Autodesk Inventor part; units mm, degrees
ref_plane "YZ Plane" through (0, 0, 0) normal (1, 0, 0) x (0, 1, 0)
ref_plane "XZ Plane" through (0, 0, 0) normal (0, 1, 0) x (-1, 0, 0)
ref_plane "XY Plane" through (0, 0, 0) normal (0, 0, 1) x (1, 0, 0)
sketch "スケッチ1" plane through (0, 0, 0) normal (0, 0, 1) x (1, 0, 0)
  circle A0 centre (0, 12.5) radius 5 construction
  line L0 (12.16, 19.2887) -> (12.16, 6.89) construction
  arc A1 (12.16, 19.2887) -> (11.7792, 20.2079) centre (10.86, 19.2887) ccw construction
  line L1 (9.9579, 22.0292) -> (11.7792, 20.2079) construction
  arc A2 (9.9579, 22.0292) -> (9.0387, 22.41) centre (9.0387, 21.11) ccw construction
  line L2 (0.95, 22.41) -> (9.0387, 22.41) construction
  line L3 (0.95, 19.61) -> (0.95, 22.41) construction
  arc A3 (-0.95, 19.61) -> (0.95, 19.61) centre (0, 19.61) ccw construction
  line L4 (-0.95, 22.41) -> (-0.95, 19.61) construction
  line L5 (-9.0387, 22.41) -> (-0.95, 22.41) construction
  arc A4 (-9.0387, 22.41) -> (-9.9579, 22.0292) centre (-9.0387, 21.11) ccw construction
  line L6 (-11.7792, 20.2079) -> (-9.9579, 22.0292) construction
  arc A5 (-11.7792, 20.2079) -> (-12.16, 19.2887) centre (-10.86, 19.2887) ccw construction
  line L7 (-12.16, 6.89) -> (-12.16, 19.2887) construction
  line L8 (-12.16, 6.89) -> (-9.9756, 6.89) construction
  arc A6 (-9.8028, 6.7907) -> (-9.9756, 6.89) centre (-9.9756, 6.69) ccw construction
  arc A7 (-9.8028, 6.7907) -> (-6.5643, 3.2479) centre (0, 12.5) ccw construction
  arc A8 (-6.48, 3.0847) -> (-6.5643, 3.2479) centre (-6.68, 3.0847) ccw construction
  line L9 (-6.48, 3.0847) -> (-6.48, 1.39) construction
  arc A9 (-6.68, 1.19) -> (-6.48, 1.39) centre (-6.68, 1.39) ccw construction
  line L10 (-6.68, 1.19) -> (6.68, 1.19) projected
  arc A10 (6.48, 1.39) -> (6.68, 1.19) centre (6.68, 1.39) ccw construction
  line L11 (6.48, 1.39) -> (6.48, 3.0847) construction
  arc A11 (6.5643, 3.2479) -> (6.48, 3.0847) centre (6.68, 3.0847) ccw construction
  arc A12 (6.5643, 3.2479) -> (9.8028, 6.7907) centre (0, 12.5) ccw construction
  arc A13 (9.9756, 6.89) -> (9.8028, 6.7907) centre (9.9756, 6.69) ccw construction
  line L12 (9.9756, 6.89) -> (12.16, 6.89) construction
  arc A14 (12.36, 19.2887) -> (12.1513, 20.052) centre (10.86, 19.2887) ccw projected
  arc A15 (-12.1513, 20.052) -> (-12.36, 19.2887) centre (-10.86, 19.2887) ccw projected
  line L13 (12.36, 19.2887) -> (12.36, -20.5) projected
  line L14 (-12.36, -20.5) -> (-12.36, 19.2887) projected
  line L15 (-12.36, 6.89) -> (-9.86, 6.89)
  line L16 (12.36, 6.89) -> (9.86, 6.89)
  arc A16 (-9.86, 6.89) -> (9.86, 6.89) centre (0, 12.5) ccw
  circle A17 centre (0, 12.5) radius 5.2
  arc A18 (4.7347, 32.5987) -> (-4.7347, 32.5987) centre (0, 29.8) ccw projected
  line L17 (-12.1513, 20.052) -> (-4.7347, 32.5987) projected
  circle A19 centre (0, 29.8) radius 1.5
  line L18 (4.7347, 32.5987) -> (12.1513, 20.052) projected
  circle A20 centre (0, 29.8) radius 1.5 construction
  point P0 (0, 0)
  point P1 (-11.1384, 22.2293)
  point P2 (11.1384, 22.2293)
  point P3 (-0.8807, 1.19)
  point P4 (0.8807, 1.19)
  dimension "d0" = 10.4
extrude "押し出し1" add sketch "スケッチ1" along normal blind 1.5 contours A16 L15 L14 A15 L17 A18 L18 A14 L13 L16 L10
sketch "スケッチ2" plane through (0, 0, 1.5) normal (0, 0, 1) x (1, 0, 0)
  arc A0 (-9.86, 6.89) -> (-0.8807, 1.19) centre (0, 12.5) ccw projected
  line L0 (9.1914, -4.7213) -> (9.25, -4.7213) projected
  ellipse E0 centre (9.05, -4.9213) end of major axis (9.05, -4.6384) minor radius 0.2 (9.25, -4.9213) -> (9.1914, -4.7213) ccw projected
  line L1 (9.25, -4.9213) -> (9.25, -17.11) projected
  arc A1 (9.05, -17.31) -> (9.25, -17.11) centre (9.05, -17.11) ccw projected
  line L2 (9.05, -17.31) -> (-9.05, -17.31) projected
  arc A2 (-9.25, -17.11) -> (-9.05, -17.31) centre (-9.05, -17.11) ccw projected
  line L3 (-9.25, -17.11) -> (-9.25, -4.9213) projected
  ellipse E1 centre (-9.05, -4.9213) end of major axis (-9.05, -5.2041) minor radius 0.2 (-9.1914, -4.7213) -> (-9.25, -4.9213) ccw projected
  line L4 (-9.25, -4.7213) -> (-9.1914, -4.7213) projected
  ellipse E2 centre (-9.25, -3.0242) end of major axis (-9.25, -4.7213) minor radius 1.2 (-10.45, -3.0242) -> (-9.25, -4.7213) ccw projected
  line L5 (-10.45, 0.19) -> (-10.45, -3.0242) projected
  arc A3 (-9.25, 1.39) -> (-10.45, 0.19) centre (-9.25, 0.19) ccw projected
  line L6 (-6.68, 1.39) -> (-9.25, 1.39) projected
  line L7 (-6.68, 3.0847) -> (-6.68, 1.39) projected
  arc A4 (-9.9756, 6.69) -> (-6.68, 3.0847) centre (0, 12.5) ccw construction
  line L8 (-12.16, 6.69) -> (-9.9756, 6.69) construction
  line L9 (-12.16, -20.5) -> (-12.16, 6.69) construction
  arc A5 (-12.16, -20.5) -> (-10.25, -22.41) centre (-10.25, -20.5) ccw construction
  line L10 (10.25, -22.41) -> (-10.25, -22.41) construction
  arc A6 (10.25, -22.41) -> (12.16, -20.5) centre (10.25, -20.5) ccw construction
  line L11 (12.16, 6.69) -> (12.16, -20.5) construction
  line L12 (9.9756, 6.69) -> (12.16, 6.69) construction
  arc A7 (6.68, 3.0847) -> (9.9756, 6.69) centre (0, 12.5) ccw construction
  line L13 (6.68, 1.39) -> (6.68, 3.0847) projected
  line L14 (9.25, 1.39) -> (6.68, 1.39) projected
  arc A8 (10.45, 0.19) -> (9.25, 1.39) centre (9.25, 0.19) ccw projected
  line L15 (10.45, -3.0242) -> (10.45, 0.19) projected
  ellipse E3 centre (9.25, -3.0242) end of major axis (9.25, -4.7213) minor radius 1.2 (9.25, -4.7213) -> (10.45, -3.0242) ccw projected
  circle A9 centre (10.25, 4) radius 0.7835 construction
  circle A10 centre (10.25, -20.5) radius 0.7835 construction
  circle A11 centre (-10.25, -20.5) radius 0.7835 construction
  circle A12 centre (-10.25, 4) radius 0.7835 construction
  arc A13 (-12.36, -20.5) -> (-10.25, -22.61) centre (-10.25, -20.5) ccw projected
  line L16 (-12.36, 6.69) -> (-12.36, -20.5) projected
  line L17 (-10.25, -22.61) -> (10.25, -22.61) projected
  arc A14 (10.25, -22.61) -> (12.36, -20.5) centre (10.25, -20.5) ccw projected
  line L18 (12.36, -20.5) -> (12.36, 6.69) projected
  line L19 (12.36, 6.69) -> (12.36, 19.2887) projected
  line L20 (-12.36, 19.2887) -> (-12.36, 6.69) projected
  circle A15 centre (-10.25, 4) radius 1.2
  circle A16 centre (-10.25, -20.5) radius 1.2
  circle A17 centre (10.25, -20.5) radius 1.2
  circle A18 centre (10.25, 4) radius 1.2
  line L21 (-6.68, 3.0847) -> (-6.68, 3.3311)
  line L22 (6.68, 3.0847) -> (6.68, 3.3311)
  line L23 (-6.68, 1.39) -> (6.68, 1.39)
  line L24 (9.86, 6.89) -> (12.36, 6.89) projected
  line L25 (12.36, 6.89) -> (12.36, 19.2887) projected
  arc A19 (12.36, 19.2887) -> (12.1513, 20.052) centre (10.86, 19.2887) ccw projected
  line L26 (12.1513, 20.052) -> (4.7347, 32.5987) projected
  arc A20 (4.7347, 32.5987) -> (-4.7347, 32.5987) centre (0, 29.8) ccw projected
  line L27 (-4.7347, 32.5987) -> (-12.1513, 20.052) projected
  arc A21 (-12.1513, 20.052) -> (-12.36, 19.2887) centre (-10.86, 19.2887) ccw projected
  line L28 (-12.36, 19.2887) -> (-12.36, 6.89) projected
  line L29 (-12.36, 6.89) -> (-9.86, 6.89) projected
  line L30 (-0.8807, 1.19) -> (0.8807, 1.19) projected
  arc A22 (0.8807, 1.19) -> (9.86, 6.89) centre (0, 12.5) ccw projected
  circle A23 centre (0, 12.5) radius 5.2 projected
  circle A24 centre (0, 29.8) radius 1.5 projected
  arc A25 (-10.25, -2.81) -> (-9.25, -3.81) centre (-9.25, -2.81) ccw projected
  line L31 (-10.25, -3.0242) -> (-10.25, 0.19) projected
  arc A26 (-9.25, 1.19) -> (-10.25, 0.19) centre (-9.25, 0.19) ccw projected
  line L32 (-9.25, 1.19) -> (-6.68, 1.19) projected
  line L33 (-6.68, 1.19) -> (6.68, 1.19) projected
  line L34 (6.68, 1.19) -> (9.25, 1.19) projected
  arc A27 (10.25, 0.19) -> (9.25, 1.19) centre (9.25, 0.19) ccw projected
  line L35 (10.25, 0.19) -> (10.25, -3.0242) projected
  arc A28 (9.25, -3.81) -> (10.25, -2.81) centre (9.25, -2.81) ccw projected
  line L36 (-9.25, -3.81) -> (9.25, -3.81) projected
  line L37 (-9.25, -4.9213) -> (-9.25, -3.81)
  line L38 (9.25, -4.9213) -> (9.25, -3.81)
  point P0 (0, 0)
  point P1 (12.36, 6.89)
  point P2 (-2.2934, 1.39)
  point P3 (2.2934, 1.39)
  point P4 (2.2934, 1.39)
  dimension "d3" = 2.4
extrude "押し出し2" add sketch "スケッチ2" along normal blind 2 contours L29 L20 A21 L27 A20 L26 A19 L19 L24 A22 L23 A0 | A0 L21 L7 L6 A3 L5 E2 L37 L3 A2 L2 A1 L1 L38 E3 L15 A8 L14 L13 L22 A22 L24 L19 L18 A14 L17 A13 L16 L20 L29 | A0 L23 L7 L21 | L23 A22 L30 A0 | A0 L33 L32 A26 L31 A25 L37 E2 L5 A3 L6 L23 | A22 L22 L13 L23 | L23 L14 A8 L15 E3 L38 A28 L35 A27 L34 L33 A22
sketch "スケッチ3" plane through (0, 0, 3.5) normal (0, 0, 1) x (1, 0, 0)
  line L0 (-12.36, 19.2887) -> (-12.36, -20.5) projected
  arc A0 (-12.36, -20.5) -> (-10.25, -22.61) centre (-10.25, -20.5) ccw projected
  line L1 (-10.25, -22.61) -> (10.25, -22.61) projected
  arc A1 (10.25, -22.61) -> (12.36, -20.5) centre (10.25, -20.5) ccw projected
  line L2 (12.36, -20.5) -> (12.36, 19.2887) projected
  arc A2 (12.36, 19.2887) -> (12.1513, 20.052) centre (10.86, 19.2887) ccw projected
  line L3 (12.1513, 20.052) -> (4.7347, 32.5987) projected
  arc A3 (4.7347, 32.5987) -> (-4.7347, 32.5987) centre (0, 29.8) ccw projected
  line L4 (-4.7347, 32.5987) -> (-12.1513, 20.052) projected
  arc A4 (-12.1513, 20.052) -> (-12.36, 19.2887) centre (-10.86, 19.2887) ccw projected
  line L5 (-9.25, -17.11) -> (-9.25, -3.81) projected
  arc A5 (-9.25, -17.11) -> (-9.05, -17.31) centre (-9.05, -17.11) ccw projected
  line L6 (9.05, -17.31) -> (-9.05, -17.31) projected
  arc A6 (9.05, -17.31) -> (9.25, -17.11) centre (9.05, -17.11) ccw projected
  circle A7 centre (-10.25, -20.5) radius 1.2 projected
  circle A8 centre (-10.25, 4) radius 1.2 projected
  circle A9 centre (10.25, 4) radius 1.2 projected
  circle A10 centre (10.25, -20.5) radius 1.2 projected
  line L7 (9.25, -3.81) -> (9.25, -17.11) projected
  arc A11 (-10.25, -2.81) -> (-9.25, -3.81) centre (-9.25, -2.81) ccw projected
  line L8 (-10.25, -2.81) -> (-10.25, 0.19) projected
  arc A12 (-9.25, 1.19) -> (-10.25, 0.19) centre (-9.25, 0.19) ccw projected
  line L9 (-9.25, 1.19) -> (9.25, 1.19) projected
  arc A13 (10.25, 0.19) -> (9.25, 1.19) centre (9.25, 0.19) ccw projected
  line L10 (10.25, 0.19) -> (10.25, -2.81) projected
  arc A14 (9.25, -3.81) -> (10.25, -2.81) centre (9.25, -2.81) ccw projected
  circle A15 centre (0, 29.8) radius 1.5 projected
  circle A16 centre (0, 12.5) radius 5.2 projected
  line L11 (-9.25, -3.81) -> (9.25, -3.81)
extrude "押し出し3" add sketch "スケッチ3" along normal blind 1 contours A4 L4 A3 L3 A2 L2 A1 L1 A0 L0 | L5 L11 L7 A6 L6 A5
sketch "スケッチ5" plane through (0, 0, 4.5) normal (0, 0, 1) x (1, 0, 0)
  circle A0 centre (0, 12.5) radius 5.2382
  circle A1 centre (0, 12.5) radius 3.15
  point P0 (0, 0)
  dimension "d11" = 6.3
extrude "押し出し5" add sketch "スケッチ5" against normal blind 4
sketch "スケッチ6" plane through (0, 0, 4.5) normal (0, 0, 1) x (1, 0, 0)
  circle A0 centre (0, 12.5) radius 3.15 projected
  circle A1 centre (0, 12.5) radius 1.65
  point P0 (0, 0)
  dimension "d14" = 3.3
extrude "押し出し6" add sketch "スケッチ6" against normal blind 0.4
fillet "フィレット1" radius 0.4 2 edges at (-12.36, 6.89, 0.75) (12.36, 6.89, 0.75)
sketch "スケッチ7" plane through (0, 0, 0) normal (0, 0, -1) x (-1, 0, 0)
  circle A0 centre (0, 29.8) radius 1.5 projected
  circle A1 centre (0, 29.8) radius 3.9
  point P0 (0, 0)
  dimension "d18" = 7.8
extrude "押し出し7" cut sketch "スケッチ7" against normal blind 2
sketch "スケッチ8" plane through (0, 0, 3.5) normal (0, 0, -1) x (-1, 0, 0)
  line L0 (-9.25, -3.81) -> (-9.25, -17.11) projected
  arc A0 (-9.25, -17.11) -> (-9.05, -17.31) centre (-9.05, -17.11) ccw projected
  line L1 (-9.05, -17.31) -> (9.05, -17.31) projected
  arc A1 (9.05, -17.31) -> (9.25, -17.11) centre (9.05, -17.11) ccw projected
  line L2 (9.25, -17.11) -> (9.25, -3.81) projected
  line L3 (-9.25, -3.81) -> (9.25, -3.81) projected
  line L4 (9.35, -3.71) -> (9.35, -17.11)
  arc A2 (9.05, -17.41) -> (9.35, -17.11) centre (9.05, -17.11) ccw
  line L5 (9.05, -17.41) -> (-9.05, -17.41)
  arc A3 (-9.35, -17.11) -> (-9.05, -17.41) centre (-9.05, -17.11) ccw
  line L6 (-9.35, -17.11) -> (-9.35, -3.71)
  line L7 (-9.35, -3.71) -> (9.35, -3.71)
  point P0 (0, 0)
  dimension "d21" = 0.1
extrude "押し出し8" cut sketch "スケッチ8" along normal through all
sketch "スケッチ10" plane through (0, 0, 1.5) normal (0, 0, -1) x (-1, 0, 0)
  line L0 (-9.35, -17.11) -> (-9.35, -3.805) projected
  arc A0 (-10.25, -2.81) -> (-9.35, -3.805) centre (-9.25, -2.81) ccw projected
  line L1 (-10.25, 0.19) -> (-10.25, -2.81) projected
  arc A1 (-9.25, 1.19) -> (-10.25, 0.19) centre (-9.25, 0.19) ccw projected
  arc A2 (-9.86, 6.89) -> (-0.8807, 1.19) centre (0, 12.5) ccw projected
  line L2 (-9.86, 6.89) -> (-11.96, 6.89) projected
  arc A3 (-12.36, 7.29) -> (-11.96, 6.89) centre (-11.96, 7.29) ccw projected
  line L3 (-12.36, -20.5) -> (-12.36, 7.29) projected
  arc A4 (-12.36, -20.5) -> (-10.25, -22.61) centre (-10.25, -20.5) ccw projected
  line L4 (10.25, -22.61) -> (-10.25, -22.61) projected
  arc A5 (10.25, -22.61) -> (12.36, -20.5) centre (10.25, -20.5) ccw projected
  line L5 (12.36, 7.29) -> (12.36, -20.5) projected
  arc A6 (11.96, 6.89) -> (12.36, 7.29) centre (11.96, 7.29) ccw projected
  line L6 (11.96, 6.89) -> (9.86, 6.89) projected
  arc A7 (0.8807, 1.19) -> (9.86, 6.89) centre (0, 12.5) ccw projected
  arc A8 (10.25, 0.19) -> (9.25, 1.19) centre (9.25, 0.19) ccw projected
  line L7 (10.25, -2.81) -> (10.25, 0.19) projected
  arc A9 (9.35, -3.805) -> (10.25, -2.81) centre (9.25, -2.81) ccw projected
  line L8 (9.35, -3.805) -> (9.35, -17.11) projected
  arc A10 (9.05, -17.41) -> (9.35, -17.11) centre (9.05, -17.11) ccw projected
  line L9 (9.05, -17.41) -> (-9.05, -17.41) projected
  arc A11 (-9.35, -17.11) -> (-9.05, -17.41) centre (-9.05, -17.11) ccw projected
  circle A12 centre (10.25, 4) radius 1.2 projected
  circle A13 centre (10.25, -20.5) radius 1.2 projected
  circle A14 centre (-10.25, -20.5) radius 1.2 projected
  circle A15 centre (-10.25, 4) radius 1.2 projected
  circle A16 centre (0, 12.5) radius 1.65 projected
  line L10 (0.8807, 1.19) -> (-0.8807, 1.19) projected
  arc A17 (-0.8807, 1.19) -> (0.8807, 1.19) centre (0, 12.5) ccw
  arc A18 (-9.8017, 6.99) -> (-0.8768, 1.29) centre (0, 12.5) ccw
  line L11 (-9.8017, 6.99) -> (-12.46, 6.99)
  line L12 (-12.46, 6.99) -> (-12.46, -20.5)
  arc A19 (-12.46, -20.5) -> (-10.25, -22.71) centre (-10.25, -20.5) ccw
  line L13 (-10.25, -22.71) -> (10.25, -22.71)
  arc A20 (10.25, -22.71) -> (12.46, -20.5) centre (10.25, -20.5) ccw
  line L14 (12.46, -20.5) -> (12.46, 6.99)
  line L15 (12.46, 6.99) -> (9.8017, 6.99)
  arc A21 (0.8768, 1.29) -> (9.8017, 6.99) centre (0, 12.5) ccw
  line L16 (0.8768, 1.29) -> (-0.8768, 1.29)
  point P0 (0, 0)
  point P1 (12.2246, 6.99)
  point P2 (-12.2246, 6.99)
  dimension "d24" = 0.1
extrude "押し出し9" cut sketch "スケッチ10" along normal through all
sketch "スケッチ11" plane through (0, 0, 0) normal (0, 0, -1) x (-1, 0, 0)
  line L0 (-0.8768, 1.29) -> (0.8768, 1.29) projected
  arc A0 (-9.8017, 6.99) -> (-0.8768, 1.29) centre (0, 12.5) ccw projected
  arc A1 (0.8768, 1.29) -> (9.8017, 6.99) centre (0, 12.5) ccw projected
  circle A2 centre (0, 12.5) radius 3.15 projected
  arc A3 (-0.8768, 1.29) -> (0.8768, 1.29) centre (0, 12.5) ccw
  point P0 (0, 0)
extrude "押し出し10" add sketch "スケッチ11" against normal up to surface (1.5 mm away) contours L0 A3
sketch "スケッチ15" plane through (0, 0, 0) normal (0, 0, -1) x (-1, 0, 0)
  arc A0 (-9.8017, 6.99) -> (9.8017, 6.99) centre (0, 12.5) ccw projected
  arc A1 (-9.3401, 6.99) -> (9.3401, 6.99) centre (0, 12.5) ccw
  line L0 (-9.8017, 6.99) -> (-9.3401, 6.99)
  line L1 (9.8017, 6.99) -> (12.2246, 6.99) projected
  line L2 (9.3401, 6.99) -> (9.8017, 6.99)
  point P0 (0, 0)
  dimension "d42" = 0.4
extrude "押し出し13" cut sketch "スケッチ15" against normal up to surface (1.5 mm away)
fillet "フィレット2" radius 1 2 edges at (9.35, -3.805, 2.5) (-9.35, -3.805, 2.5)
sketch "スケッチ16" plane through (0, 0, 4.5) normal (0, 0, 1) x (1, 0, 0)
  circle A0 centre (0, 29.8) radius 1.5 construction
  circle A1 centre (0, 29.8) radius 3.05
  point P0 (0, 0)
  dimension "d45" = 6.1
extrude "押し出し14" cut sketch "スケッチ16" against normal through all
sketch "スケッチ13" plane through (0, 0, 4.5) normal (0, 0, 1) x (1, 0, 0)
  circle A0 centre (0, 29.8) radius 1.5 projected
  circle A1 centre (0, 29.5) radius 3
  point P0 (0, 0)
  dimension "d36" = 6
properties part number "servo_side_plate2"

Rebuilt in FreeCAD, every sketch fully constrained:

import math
import FreeCAD as App
import Part
import Sketcher
Q = App.Units.Quantity


def edges_at(feature, points):
    """Names of the edges that pass closest to the given points."""
    edges = feature.Shape.Edges
    near = lambda p: min(range(len(edges)), key=lambda i: edges[i].distToShape(Part.Vertex(*p))[0])
    return sorted({f"Edge{near(p) + 1}" for p in points})

doc = App.newDocument("Part")
params = doc.addObject("Spreadsheet::Sheet", "Params")
for row, (alias, value) in enumerate([
    ("sketch1_diameter", "10.4 mm"),
    ("sketch1_diameter2", "3 mm"),
    ("sketch1_radius", "5.5 mm"),
    ("sketch1_width", "2.5 mm"),
    ("pad1_length", "1.5 mm"),
    ("sketch2_diameter", "2.4 mm"),
    ("sketch2_diameter2", "3 mm"),
    ("sketch2_radius", "1 mm"),
    ("sketch2_diameter3", "10.4 mm"),
    ("sketch2_radius2", "5.5 mm"),
    ("pad2_length", "2 mm"),
    ("sketch3_diameter", "3 mm"),
    ("sketch3_radius", "1 mm"),
    ("sketch3_diameter2", "2.4 mm"),
    ("sketch3_diameter3", "10.4 mm"),
    ("sketch3_radius2", "5.5 mm"),
    ("pad3_length", "1 mm"),
    ("sketch4_diameter", "6.3 mm"),
    ("pad4_length", "4 mm"),
    ("sketch5_diameter", "3.3 mm"),
    ("sketch5_diameter2", "6.3 mm"),
    ("pad5_length", "0.4 mm"),
    ("fillet_radius", "0.4 mm"),
    ("sketch6_diameter", "7.8 mm"),
    ("sketch6_diameter2", "3 mm"),
    ("pocket1_length", "2 mm"),
    ("sketch7_radius", "0.3 mm"),
    ("sketch7_radius2", "0.2 mm"),
    ("sketch7_width", "18.7 mm"),
    ("sketch7_height", "13.4 mm"),
    ("sketch8_width", "0.1 mm"),
    ("sketch8_diameter", "2.4 mm"),
    ("sketch8_diameter2", "3.3 mm"),
    ("sketch8_radius", "0.4 mm"),
    ("sketch8_radius2", "2.21 mm"),
    ("pad6_length", "1.5 mm"),
    ("pocket4_length", "1.5 mm"),
    ("fillet2_radius", "1 mm"),
    ("sketch11_diameter", "6.1 mm"),
], start=1):
    params.set(f"A{row}", alias)
    params.set(f"B{row}", "=" + value)
    params.setAlias(f"B{row}", alias)

body = doc.addObject("PartDesign::Body", "Body")

# Sketch on XY plane
sketch1 = doc.addObject("Sketcher::SketchObject", "Sketch")
body.addObject(sketch1)
sketch1.AttachmentSupport = (doc.XY_Plane, [""])
sketch1.MapMode = "FlatFace"
sketch1.addGeometry([
    Part.ArcOfCircle(Part.Circle(App.Vector(0, 12.5, 0), App.Vector(0, 0, 1), 11.3), math.radians(-150), math.radians(-94)),  # 0
    Part.LineSegment(App.Vector(-0.9, 1.2, 0), App.Vector(0.9, 1.2, 0)),  # 1
    Part.ArcOfCircle(Part.Circle(App.Vector(0, 12.5, 0), App.Vector(0, 0, 1), 11.3), math.radians(-86), math.radians(-30)),  # 2
    Part.LineSegment(App.Vector(9.9, 6.9, 0), App.Vector(12.4, 6.9, 0)),  # 3
    Part.LineSegment(App.Vector(12.4, 6.9, 0), App.Vector(12.4, 19.3, 0)),  # 4
    Part.ArcOfCircle(Part.Circle(App.Vector(10.9, 19.3, 0), App.Vector(0, 0, 1), 1.5), math.radians(0), math.radians(31)),  # 5
    Part.LineSegment(App.Vector(12.2, 20.1, 0), App.Vector(4.7, 32.6, 0)),  # 6
    Part.ArcOfCircle(Part.Circle(App.Vector(0, 29.8, 0), App.Vector(0, 0, 1), 5.5), math.radians(31), math.radians(149)),  # 7
    Part.LineSegment(App.Vector(-4.7, 32.6, 0), App.Vector(-12.2, 20.1, 0)),  # 8
    Part.ArcOfCircle(Part.Circle(App.Vector(-10.9, 19.3, 0), App.Vector(0, 0, 1), 1.5), math.radians(149), math.radians(180)),  # 9
    Part.LineSegment(App.Vector(-12.4, 19.3, 0), App.Vector(-12.4, 6.9, 0)),  # 10
    Part.LineSegment(App.Vector(-12.4, 6.9, 0), App.Vector(-9.9, 6.9, 0)),  # 11
    Part.Circle(App.Vector(0, 12.5, 0), App.Vector(0, 0, 1), 5.2),  # 12
    Part.Circle(App.Vector(0, 29.8, 0), App.Vector(0, 0, 1), 1.5),  # 13
], False)
sketch1.addConstraint([
    Sketcher.Constraint("Coincident", 0, 2, 1, 1),
    Sketcher.Constraint("Coincident", 1, 2, 2, 1),
    Sketcher.Constraint("Coincident", 2, 2, 3, 1),
    Sketcher.Constraint("Coincident", 3, 2, 4, 1),
    Sketcher.Constraint("Tangent", 4, 2, 5, 1),
    Sketcher.Constraint("Tangent", 5, 2, 6, 1),
    Sketcher.Constraint("Tangent", 6, 2, 7, 1),
    Sketcher.Constraint("Tangent", 7, 2, 8, 1),
    Sketcher.Constraint("Tangent", 8, 2, 9, 1),
    Sketcher.Constraint("Tangent", 9, 2, 10, 1),
    Sketcher.Constraint("Coincident", 10, 2, 11, 1),
    Sketcher.Constraint("Coincident", 11, 2, 0, 1),
    Sketcher.Constraint("Horizontal", 1),
    Sketcher.Constraint("Horizontal", 3),
    Sketcher.Constraint("Vertical", 4),
    Sketcher.Constraint("Vertical", 10),
    Sketcher.Constraint("Horizontal", 11),
    Sketcher.Constraint("Coincident", 2, 3, 0, 3),
    Sketcher.Constraint("Coincident", 12, 3, 0, 3),
    Sketcher.Constraint("Coincident", 13, 3, 7, 3),
    Sketcher.Constraint("Equal", 0, 2),
    Sketcher.Constraint("Equal", 5, 9),
    Sketcher.Constraint("Equal", 9, 13),
    Sketcher.Constraint("Symmetric", 5, 3, 9, 3, -2),
    Sketcher.Constraint("Symmetric", 2, 2, 11, 2, -2),
    Sketcher.Constraint("PointOnObject", 7, 3, -2),
    Sketcher.Constraint("Diameter", 12, Q("10.4 mm")),
    Sketcher.Constraint("Diameter", 13, Q("3 mm")),
    Sketcher.Constraint("Radius", 7, Q("5.5 mm")),
    Sketcher.Constraint("DistanceX", 3, 1, 3, 2, Q("2.5 mm")),
    Sketcher.Constraint("DistanceY", -1, 1, 0, 3, Q("12.5 mm")),
    Sketcher.Constraint("DistanceY", -1, 1, 7, 3, Q("29.8 mm")),
    Sketcher.Constraint("Radius", 0, Q("11.3442 mm")),
    Sketcher.Constraint("DistanceY", 1, 2, 2, 2, Q("5.7 mm")),
    Sketcher.Constraint("DistanceX", -1, 1, 5, 3, Q("10.86 mm")),
    Sketcher.Constraint("DistanceY", 5, 3, 6, 2, Q("13.31 mm")),
])
sketch1.setExpression("Constraints[26]", "Params.sketch1_diameter")
sketch1.setExpression("Constraints[27]", "Params.sketch1_diameter2")
sketch1.setExpression("Constraints[28]", "Params.sketch1_radius")
sketch1.setExpression("Constraints[29]", "Params.sketch1_width")
pad1 = doc.addObject("PartDesign::Pad", "Pad")
body.addObject(pad1)
pad1.Profile = sketch1
pad1.setExpression("Length", "Params.pad1_length")

# Sketch on XY plane
sketch2 = doc.addObject("Sketcher::SketchObject", "Sketch001")
body.addObject(sketch2)
sketch2.AttachmentSupport = (doc.XY_Plane, [""])
sketch2.MapMode = "FlatFace"
sketch2.AttachmentOffset = App.Placement(App.Vector(0, 0, 1.5), App.Rotation())
sketch2.addGeometry([
    Part.LineSegment(App.Vector(-12.36, 19.29, 0), App.Vector(-12.36, -20.5, 0)),  # 0
    Part.ArcOfCircle(Part.Circle(App.Vector(-10.25, -20.5, 0), App.Vector(0, 0, 1), 2.11), math.radians(180), math.radians(270)),  # 1
    Part.LineSegment(App.Vector(-10.25, -22.61, 0), App.Vector(10.25, -22.61, 0)),  # 2
    Part.ArcOfCircle(Part.Circle(App.Vector(10.25, -20.5, 0), App.Vector(0, 0, 1), 2.11), math.radians(-90), math.radians(0)),  # 3
    Part.LineSegment(App.Vector(12.36, -20.5, 0), App.Vector(12.36, 19.29, 0)),  # 4
    Part.ArcOfCircle(Part.Circle(App.Vector(10.86, 19.29, 0), App.Vector(0, 0, 1), 1.5), math.radians(0), math.radians(31)),  # 5
    Part.LineSegment(App.Vector(12.15, 20.05, 0), App.Vector(4.73, 32.6, 0)),  # 6
    Part.ArcOfCircle(Part.Circle(App.Vector(0, 29.8, 0), App.Vector(0, 0, 1), 5.5), math.radians(31), math.radians(149)),  # 7
    Part.LineSegment(App.Vector(-4.73, 32.6, 0), App.Vector(-12.15, 20.05, 0)),  # 8
    Part.ArcOfCircle(Part.Circle(App.Vector(-10.86, 19.29, 0), App.Vector(0, 0, 1), 1.5), math.radians(149), math.radians(180)),  # 9
    Part.Circle(App.Vector(0, 12.5, 0), App.Vector(0, 0, 1), 5.2),  # 10
    Part.Circle(App.Vector(0, 29.8, 0), App.Vector(0, 0, 1), 1.5),  # 11
    Part.Circle(App.Vector(-10.25, -20.5, 0), App.Vector(0, 0, 1), 1.2),  # 12
    Part.ArcOfCircle(Part.Circle(App.Vector(-9.25, -2.81, 0), App.Vector(0, 0, 1), 1), math.radians(180), math.radians(270)),  # 13
    Part.LineSegment(App.Vector(-10.25, -2.81, 0), App.Vector(-10.25, 0.19, 0)),  # 14
    Part.ArcOfCircle(Part.Circle(App.Vector(-9.25, 0.19, 0), App.Vector(0, 0, 1), 1), math.radians(90), math.radians(180)),  # 15
    Part.LineSegment(App.Vector(-9.25, 1.19, 0), App.Vector(9.25, 1.19, 0)),  # 16
    Part.ArcOfCircle(Part.Circle(App.Vector(9.25, 0.19, 0), App.Vector(0, 0, 1), 1), math.radians(0), math.radians(90)),  # 17
    Part.LineSegment(App.Vector(10.25, 0.19, 0), App.Vector(10.25, -2.81, 0)),  # 18
    Part.ArcOfCircle(Part.Circle(App.Vector(9.25, -2.81, 0), App.Vector(0, 0, 1), 1), math.radians(-90), math.radians(0)),  # 19
    Part.LineSegment(App.Vector(9.25, -3.81, 0), App.Vector(9.25, -17.11, 0)),  # 20
    Part.ArcOfCircle(Part.Circle(App.Vector(9.05, -17.11, 0), App.Vector(0, 0, 1), 0.2), math.radians(-90), math.radians(0)),  # 21
    Part.LineSegment(App.Vector(9.05, -17.31, 0), App.Vector(-9.05, -17.31, 0)),  # 22
    Part.ArcOfCircle(Part.Circle(App.Vector(-9.05, -17.11, 0), App.Vector(0, 0, 1), 0.2), math.radians(180), math.radians(270)),  # 23
    Part.LineSegment(App.Vector(-9.25, -17.11, 0), App.Vector(-9.25, -3.81, 0)),  # 24
    Part.Circle(App.Vector(-10.25, 4, 0), App.Vector(0, 0, 1), 1.2),  # 25
    Part.Circle(App.Vector(10.25, -20.5, 0), App.Vector(0, 0, 1), 1.2),  # 26
    Part.Circle(App.Vector(10.25, 4, 0), App.Vector(0, 0, 1), 1.2),  # 27
], False)
sketch2.addConstraint([
    Sketcher.Constraint("Tangent", 0, 2, 1, 1),
    Sketcher.Constraint("Tangent", 1, 2, 2, 1),
    Sketcher.Constraint("Tangent", 2, 2, 3, 1),
    Sketcher.Constraint("Tangent", 3, 2, 4, 1),
    Sketcher.Constraint("Tangent", 4, 2, 5, 1),
    Sketcher.Constraint("Tangent", 5, 2, 6, 1),
    Sketcher.Constraint("Tangent", 6, 2, 7, 1),
    Sketcher.Constraint("Tangent", 7, 2, 8, 1),
    Sketcher.Constraint("Tangent", 8, 2, 9, 1),
    Sketcher.Constraint("Tangent", 9, 2, 0, 1),
    Sketcher.Constraint("Tangent", 13, 1, 14, 1),
    Sketcher.Constraint("Tangent", 14, 2, 15, 2),
    Sketcher.Constraint("Tangent", 15, 1, 16, 1),
    Sketcher.Constraint("Tangent", 16, 2, 17, 2),
    Sketcher.Constraint("Tangent", 17, 1, 18, 1),
    Sketcher.Constraint("Tangent", 18, 2, 19, 2),
    Sketcher.Constraint("Coincident", 19, 1, 20, 1),
    Sketcher.Constraint("Tangent", 20, 2, 21, 2),
    Sketcher.Constraint("Tangent", 21, 1, 22, 1),
    Sketcher.Constraint("Tangent", 22, 2, 23, 2),
    Sketcher.Constraint("Tangent", 23, 1, 24, 1),
    Sketcher.Constraint("Coincident", 24, 2, 13, 2),
    Sketcher.Constraint("Vertical", 0),
    Sketcher.Constraint("Horizontal", 2),
    Sketcher.Constraint("Vertical", 4),
    Sketcher.Constraint("Vertical", 14),
    Sketcher.Constraint("Horizontal", 16),
    Sketcher.Constraint("Vertical", 18),
    Sketcher.Constraint("Vertical", 20),
    Sketcher.Constraint("Horizontal", 22),
    Sketcher.Constraint("Vertical", 24),
    Sketcher.Constraint("Coincident", 11, 3, 7, 3),
    Sketcher.Constraint("Coincident", 12, 3, 1, 3),
    Sketcher.Constraint("Coincident", 26, 3, 3, 3),
    Sketcher.Constraint("Equal", 1, 3),
    Sketcher.Constraint("Equal", 5, 9),
    Sketcher.Constraint("Equal", 9, 11),
    Sketcher.Constraint("Equal", 13, 15),
    Sketcher.Constraint("Equal", 15, 17),
    Sketcher.Constraint("Equal", 17, 19),
    Sketcher.Constraint("Equal", 21, 23),
    Sketcher.Constraint("Equal", 12, 25),
    Sketcher.Constraint("Equal", 25, 26),
    Sketcher.Constraint("Equal", 26, 27),
    Sketcher.Constraint("Symmetric", 5, 3, 9, 3, -2),
    Sketcher.Constraint("Symmetric", 13, 3, 19, 3, -2),
    Sketcher.Constraint("Symmetric", 25, 3, 27, 3, -2),
    Sketcher.Constraint("PointOnObject", 7, 3, -2),
    Sketcher.Constraint("PointOnObject", 10, 3, -2),
    Sketcher.Constraint("Vertical", 12, 3, 25, 3),
    Sketcher.Constraint("Vertical", 1, 2, 13, 1),
    Sketcher.Constraint("Vertical", 16, 2, 19, 1),
    Sketcher.Constraint("Vertical", 15, 1, 23, 1),
    Sketcher.Constraint("Diameter", 12, Q("2.4 mm")),
    Sketcher.Constraint("Diameter", 11, Q("3 mm")),
    Sketcher.Constraint("Radius", 13, Q("1 mm")),
    Sketcher.Constraint("Diameter", 10, Q("10.4 mm")),
    Sketcher.Constraint("Radius", 7, Q("5.5 mm")),
    Sketcher.Constraint("Radius", 21, Q("0.2 mm")),
    Sketcher.Constraint("DistanceY", 14, 1, 14, 2, Q("3 mm")),
    Sketcher.Constraint("Radius", 1, Q("2.11 mm")),
    Sketcher.Constraint("DistanceX", 2, 1, 2, 2, Q("20.5 mm")),
    Sketcher.Constraint("DistanceY", 20, 2, 20, 1, Q("13.3 mm")),
    Sketcher.Constraint("DistanceY", -1, 1, 25, 3, Q("4 mm")),
    Sketcher.Constraint("DistanceY", 1, 3, 10, 3, Q("33 mm")),
    Sketcher.Constraint("DistanceY", 1, 3, -1, 1, Q("20.5 mm")),
    Sketcher.Constraint("DistanceY", -1, 1, 7, 3, Q("29.8 mm")),
    Sketcher.Constraint("DistanceY", 1, 2, 23, 3, Q("5.5 mm")),
    Sketcher.Constraint("DistanceY", 5, 3, 6, 2, Q("13.31 mm")),
])
sketch2.setExpression("Constraints[53]", "Params.sketch2_diameter")
sketch2.setExpression("Constraints[54]", "Params.sketch2_diameter2")
sketch2.setExpression("Constraints[55]", "Params.sketch2_radius")
sketch2.setExpression("Constraints[56]", "Params.sketch2_diameter3")
sketch2.setExpression("Constraints[57]", "Params.sketch2_radius2")
pad2 = doc.addObject("PartDesign::Pad", "Pad001")
body.addObject(pad2)
pad2.Profile = sketch2
pad2.setExpression("Length", "Params.pad2_length")

# Sketch on XY plane
sketch3 = doc.addObject("Sketcher::SketchObject", "Sketch002")
body.addObject(sketch3)
sketch3.AttachmentSupport = (doc.XY_Plane, [""])
sketch3.MapMode = "FlatFace"
sketch3.AttachmentOffset = App.Placement(App.Vector(0, 0, 3.5), App.Rotation())
sketch3.addGeometry([
    Part.ArcOfCircle(Part.Circle(App.Vector(-10.9, 19.3, 0), App.Vector(0, 0, 1), 1.5), math.radians(149), math.radians(180)),  # 0
    Part.LineSegment(App.Vector(-12.4, 19.3, 0), App.Vector(-12.4, -20.5, 0)),  # 1
    Part.ArcOfCircle(Part.Circle(App.Vector(-10.2, -20.5, 0), App.Vector(0, 0, 1), 2.1), math.radians(180), math.radians(270)),  # 2
    Part.LineSegment(App.Vector(-10.2, -22.6, 0), App.Vector(10.2, -22.6, 0)),  # 3
    Part.ArcOfCircle(Part.Circle(App.Vector(10.2, -20.5, 0), App.Vector(0, 0, 1), 2.1), math.radians(-90), math.radians(0)),  # 4
    Part.LineSegment(App.Vector(12.4, -20.5, 0), App.Vector(12.4, 19.3, 0)),  # 5
    Part.ArcOfCircle(Part.Circle(App.Vector(10.9, 19.3, 0), App.Vector(0, 0, 1), 1.5), math.radians(0), math.radians(31)),  # 6
    Part.LineSegment(App.Vector(12.2, 20.1, 0), App.Vector(4.7, 32.6, 0)),  # 7
    Part.ArcOfCircle(Part.Circle(App.Vector(0, 29.8, 0), App.Vector(0, 0, 1), 5.5), math.radians(31), math.radians(149)),  # 8
    Part.LineSegment(App.Vector(-4.7, 32.6, 0), App.Vector(-12.2, 20.1, 0)),  # 9
    Part.Circle(App.Vector(-10.2, -20.5, 0), App.Vector(0, 0, 1), 1.2),  # 10
    Part.Circle(App.Vector(-10.2, 4, 0), App.Vector(0, 0, 1), 1.2),  # 11
    Part.Circle(App.Vector(10.2, -20.5, 0), App.Vector(0, 0, 1), 1.2),  # 12
    Part.ArcOfCircle(Part.Circle(App.Vector(9.2, -2.8, 0), App.Vector(0, 0, 1), 1), math.radians(-90), math.radians(0)),  # 13
    Part.LineSegment(App.Vector(9.2, -3.8, 0), App.Vector(-9.2, -3.8, 0)),  # 14
    Part.ArcOfCircle(Part.Circle(App.Vector(-9.2, -2.8, 0), App.Vector(0, 0, 1), 1), math.radians(180), math.radians(270)),  # 15
    Part.LineSegment(App.Vector(-10.2, -2.8, 0), App.Vector(-10.2, 0.2, 0)),  # 16
    Part.ArcOfCircle(Part.Circle(App.Vector(-9.2, 0.2, 0), App.Vector(0, 0, 1), 1), math.radians(90), math.radians(180)),  # 17
    Part.LineSegment(App.Vector(-9.2, 1.2, 0), App.Vector(9.2, 1.2, 0)),  # 18
    Part.ArcOfCircle(Part.Circle(App.Vector(9.2, 0.2, 0), App.Vector(0, 0, 1), 1), math.radians(0), math.radians(90)),  # 19
    Part.LineSegment(App.Vector(10.2, 0.2, 0), App.Vector(10.2, -2.8, 0)),  # 20
    Part.Circle(App.Vector(10.2, 4, 0), App.Vector(0, 0, 1), 1.2),  # 21
    Part.Circle(App.Vector(0, 12.5, 0), App.Vector(0, 0, 1), 5.2),  # 22
    Part.Circle(App.Vector(0, 29.8, 0), App.Vector(0, 0, 1), 1.5),  # 23
], False)
sketch3.addConstraint([
    Sketcher.Constraint("Tangent", 0, 2, 1, 1),
    Sketcher.Constraint("Tangent", 1, 2, 2, 1),
    Sketcher.Constraint("Tangent", 2, 2, 3, 1),
    Sketcher.Constraint("Tangent", 3, 2, 4, 1),
    Sketcher.Constraint("Tangent", 4, 2, 5, 1),
    Sketcher.Constraint("Tangent", 5, 2, 6, 1),
    Sketcher.Constraint("Tangent", 6, 2, 7, 1),
    Sketcher.Constraint("Tangent", 7, 2, 8, 1),
    Sketcher.Constraint("Tangent", 8, 2, 9, 1),
    Sketcher.Constraint("Tangent", 9, 2, 0, 1),
    Sketcher.Constraint("Tangent", 13, 1, 14, 1),
    Sketcher.Constraint("Tangent", 14, 2, 15, 2),
    Sketcher.Constraint("Tangent", 15, 1, 16, 1),
    Sketcher.Constraint("Tangent", 16, 2, 17, 2),
    Sketcher.Constraint("Tangent", 17, 1, 18, 1),
    Sketcher.Constraint("Tangent", 18, 2, 19, 2),
    Sketcher.Constraint("Tangent", 19, 1, 20, 1),
    Sketcher.Constraint("Tangent", 20, 2, 13, 2),
    Sketcher.Constraint("Vertical", 1),
    Sketcher.Constraint("Horizontal", 3),
    Sketcher.Constraint("Vertical", 5),
    Sketcher.Constraint("Horizontal", 14),
    Sketcher.Constraint("Vertical", 16),
    Sketcher.Constraint("Horizontal", 18),
    Sketcher.Constraint("Vertical", 20),
    Sketcher.Constraint("Coincident", 10, 3, 2, 3),
    Sketcher.Constraint("Coincident", 12, 3, 4, 3),
    Sketcher.Constraint("Coincident", 23, 3, 8, 3),
    Sketcher.Constraint("Equal", 2, 4),
    Sketcher.Constraint("Equal", 0, 6),
    Sketcher.Constraint("Equal", 10, 11),
    Sketcher.Constraint("Equal", 11, 12),
    Sketcher.Constraint("Equal", 13, 15),
    Sketcher.Constraint("Equal", 15, 17),
    Sketcher.Constraint("Equal", 17, 19),
    Sketcher.Constraint("Equal", 12, 21),
    Sketcher.Constraint("Equal", 6, 23),
    Sketcher.Constraint("Symmetric", 0, 3, 6, 3, -2),
    Sketcher.Constraint("Symmetric", 11, 3, 21, 3, -2),
    Sketcher.Constraint("PointOnObject", 8, 3, -2),
    Sketcher.Constraint("PointOnObject", 22, 3, -2),
    Sketcher.Constraint("Vertical", 10, 3, 11, 3),
    Sketcher.Constraint("Vertical", 2, 2, 15, 1),
    Sketcher.Constraint("Vertical", 3, 2, 19, 1),
    Sketcher.Constraint("Diameter", 23, Q("3 mm")),
    Sketcher.Constraint("Radius", 13, Q("1 mm")),
    Sketcher.Constraint("Diameter", 10, Q("2.4 mm")),
    Sketcher.Constraint("Diameter", 22, Q("10.4 mm")),
    Sketcher.Constraint("Radius", 8, Q("5.5 mm")),
    Sketcher.Constraint("DistanceY", 16, 1, 16, 2, Q("3 mm")),
    Sketcher.Constraint("Radius", 2, Q("2.11 mm")),
    Sketcher.Constraint("DistanceX", 3, 1, 3, 2, Q("20.5 mm")),
    Sketcher.Constraint("DistanceY", -1, 1, 11, 3, Q("4 mm")),
    Sketcher.Constraint("DistanceY", 2, 3, -1, 1, Q("20.5 mm")),
    Sketcher.Constraint("DistanceY", -1, 1, 8, 3, Q("29.8 mm")),
    Sketcher.Constraint("DistanceY", -1, 1, 22, 3, Q("12.5 mm")),
    Sketcher.Constraint("DistanceY", 2, 2, 15, 3, Q("19.8 mm")),
    Sketcher.Constraint("DistanceY", 6, 3, 7, 2, Q("13.31 mm")),
])
sketch3.setExpression("Constraints[44]", "Params.sketch3_diameter")
sketch3.setExpression("Constraints[45]", "Params.sketch3_radius")
sketch3.setExpression("Constraints[46]", "Params.sketch3_diameter2")
sketch3.setExpression("Constraints[47]", "Params.sketch3_diameter3")
sketch3.setExpression("Constraints[48]", "Params.sketch3_radius2")
pad3 = doc.addObject("PartDesign::Pad", "Pad002")
body.addObject(pad3)
pad3.Profile = sketch3
pad3.setExpression("Length", "Params.pad3_length")

# Sketch on XY plane
sketch4 = doc.addObject("Sketcher::SketchObject", "Sketch003")
body.addObject(sketch4)
sketch4.AttachmentSupport = (doc.XY_Plane, [""])
sketch4.MapMode = "FlatFace"
sketch4.AttachmentOffset = App.Placement(App.Vector(0, 0, 4.5), App.Rotation())
sketch4.addGeometry([
    Part.Circle(App.Vector(0, 12.5, 0), App.Vector(0, 0, 1), 5.2),
    Part.Circle(App.Vector(0, 12.5, 0), App.Vector(0, 0, 1), 3.1),
], False)
sketch4.addConstraint([
    Sketcher.Constraint("Coincident", 1, 3, 0, 3),
    Sketcher.Constraint("PointOnObject", 0, 3, -2),
    Sketcher.Constraint("Diameter", 1, Q("6.3 mm")),
    Sketcher.Constraint("Diameter", 0, Q("10.4764 mm")),
    Sketcher.Constraint("DistanceY", -1, 1, 0, 3, Q("12.5 mm")),
])
sketch4.setExpression("Constraints[2]", "Params.sketch4_diameter")
pad4 = doc.addObject("PartDesign::Pad", "Pad003")
body.addObject(pad4)
pad4.Profile = sketch4
pad4.setExpression("Length", "Params.pad4_length")
pad4.Reversed = True

# Sketch on XY plane
sketch5 = doc.addObject("Sketcher::SketchObject", "Sketch004")
body.addObject(sketch5)
sketch5.AttachmentSupport = (doc.XY_Plane, [""])
sketch5.MapMode = "FlatFace"
sketch5.AttachmentOffset = App.Placement(App.Vector(0, 0, 4.5), App.Rotation())
sketch5.addGeometry([
    Part.Circle(App.Vector(0, 12.5, 0), App.Vector(0, 0, 1), 3.1),
    Part.Circle(App.Vector(0, 12.5, 0), App.Vector(0, 0, 1), 1.6),
], False)
sketch5.addConstraint([
    Sketcher.Constraint("Coincident", 1, 3, 0, 3),
    Sketcher.Constraint("PointOnObject", 0, 3, -2),
    Sketcher.Constraint("Diameter", 1, Q("3.3 mm")),
    Sketcher.Constraint("Diameter", 0, Q("6.3 mm")),
    Sketcher.Constraint("DistanceY", -1, 1, 0, 3, Q("12.5 mm")),
])
sketch5.setExpression("Constraints[2]", "Params.sketch5_diameter")
sketch5.setExpression("Constraints[3]", "Params.sketch5_diameter2")
pad5 = doc.addObject("PartDesign::Pad", "Pad004")
body.addObject(pad5)
pad5.Profile = sketch5
pad5.setExpression("Length", "Params.pad5_length")
pad5.Reversed = True
doc.recompute()

fillet = doc.addObject("PartDesign::Fillet", "Fillet")
body.addObject(fillet)
fillet.Base = (pad5, edges_at(pad5, [(-12.36, 6.89, 0.75), (12.36, 6.89, 0.75)]))
fillet.setExpression("Radius", "Params.fillet_radius")

# Sketch on XY plane
sketch6 = doc.addObject("Sketcher::SketchObject", "Sketch005")
body.addObject(sketch6)
sketch6.AttachmentSupport = (doc.XY_Plane, [""])
sketch6.MapMode = "FlatFace"
sketch6.addGeometry([
    Part.Circle(App.Vector(0, 29.8, 0), App.Vector(0, 0, 1), 3.9),
    Part.Circle(App.Vector(0, 29.8, 0), App.Vector(0, 0, 1), 1.5),
], False)
sketch6.addConstraint([
    Sketcher.Constraint("Coincident", 1, 3, 0, 3),
    Sketcher.Constraint("PointOnObject", 0, 3, -2),
    Sketcher.Constraint("Diameter", 0, Q("7.8 mm")),
    Sketcher.Constraint("Diameter", 1, Q("3 mm")),
    Sketcher.Constraint("DistanceY", -1, 1, 0, 3, Q("29.8 mm")),
])
sketch6.setExpression("Constraints[2]", "Params.sketch6_diameter")
sketch6.setExpression("Constraints[3]", "Params.sketch6_diameter2")
pocket1 = doc.addObject("PartDesign::Pocket", "Pocket")
body.addObject(pocket1)
pocket1.Profile = sketch6
pocket1.setExpression("Length", "Params.pocket1_length")
pocket1.Reversed = True

# Sketch on XY plane
sketch7 = doc.addObject("Sketcher::SketchObject", "Sketch006")
body.addObject(sketch7)
sketch7.AttachmentSupport = (doc.XY_Plane, [""])
sketch7.MapMode = "FlatFace"
sketch7.AttachmentOffset = App.Placement(App.Vector(0, 0, 3.5), App.Rotation())
sketch7.addGeometry([
    Part.LineSegment(App.Vector(-9.35, -17.11, 0), App.Vector(-9.35, -3.71, 0)),  # 0
    Part.LineSegment(App.Vector(-9.35, -3.71, 0), App.Vector(9.35, -3.71, 0)),  # 1
    Part.LineSegment(App.Vector(9.35, -3.71, 0), App.Vector(9.35, -17.11, 0)),  # 2
    Part.ArcOfCircle(Part.Circle(App.Vector(9.05, -17.11, 0), App.Vector(0, 0, 1), 0.3), math.radians(-90), math.radians(0)),  # 3
    Part.LineSegment(App.Vector(9.05, -17.41, 0), App.Vector(-9.05, -17.41, 0)),  # 4
    Part.ArcOfCircle(Part.Circle(App.Vector(-9.05, -17.11, 0), App.Vector(0, 0, 1), 0.3), math.radians(180), math.radians(270)),  # 5
    Part.LineSegment(App.Vector(9.25, -17.11, 0), App.Vector(9.25, -3.81, 0)),  # 6
    Part.LineSegment(App.Vector(9.25, -3.81, 0), App.Vector(-9.25, -3.81, 0)),  # 7
    Part.LineSegment(App.Vector(-9.25, -3.81, 0), App.Vector(-9.25, -17.11, 0)),  # 8
    Part.ArcOfCircle(Part.Circle(App.Vector(-9.05, -17.11, 0), App.Vector(0, 0, 1), 0.2), math.radians(180), math.radians(270)),  # 9
    Part.LineSegment(App.Vector(-9.05, -17.31, 0), App.Vector(9.05, -17.31, 0)),  # 10
    Part.ArcOfCircle(Part.Circle(App.Vector(9.05, -17.11, 0), App.Vector(0, 0, 1), 0.2), math.radians(-90), math.radians(0)),  # 11
], False)
sketch7.addConstraint([
    Sketcher.Constraint("Coincident", 0, 2, 1, 1),
    Sketcher.Constraint("Coincident", 1, 2, 2, 1),
    Sketcher.Constraint("Tangent", 2, 2, 3, 2),
    Sketcher.Constraint("Tangent", 3, 1, 4, 1),
    Sketcher.Constraint("Tangent", 4, 2, 5, 2),
    Sketcher.Constraint("Tangent", 5, 1, 0, 1),
    Sketcher.Constraint("Coincident", 6, 2, 7, 1),
    Sketcher.Constraint("Coincident", 7, 2, 8, 1),
    Sketcher.Constraint("Tangent", 8, 2, 9, 1),
    Sketcher.Constraint("Tangent", 9, 2, 10, 1),
    Sketcher.Constraint("Tangent", 10, 2, 11, 1),
    Sketcher.Constraint("Tangent", 11, 2, 6, 1),
    Sketcher.Constraint("Vertical", 0),
    Sketcher.Constraint("Horizontal", 1),
    Sketcher.Constraint("Vertical", 2),
    Sketcher.Constraint("Horizontal", 4),
    Sketcher.Constraint("Vertical", 6),
    Sketcher.Constraint("Horizontal", 7),
    Sketcher.Constraint("Vertical", 8),
    Sketcher.Constraint("Horizontal", 10),
    Sketcher.Constraint("Coincident", 9, 3, 5, 3),
    Sketcher.Constraint("Coincident", 11, 3, 3, 3),
    Sketcher.Constraint("Equal", 3, 5),
    Sketcher.Constraint("Radius", 3, Q("0.3 mm")),
    Sketcher.Constraint("Radius", 9, Q("0.2 mm")),
    Sketcher.Constraint("DistanceY", 6, 2, 1, 2, Q("0.1 mm")),
    Sketcher.Constraint("DistanceX", 1, 1, 1, 2, Q("18.7 mm")),
    Sketcher.Constraint("DistanceY", 0, 1, 0, 2, Q("13.4 mm")),
    Sketcher.Constraint("DistanceX", -1, 1, 3, 3, Q("9.05 mm")),
    Sketcher.Constraint("DistanceY", 3, 3, -1, 1, Q("17.11 mm")),
])
sketch7.setExpression("Constraints[23]", "Params.sketch7_radius")
sketch7.setExpression("Constraints[24]", "Params.sketch7_radius2")
sketch7.setExpression("Constraints[26]", "Params.sketch7_width")
sketch7.setExpression("Constraints[27]", "Params.sketch7_height")
pocket2 = doc.addObject("PartDesign::Pocket", "Pocket001")
body.addObject(pocket2)
pocket2.Profile = sketch7
pocket2.Type = "ThroughAll"

# Sketch on XY plane
sketch8 = doc.addObject("Sketcher::SketchObject", "Sketch007")
body.addObject(sketch8)
sketch8.AttachmentSupport = (doc.XY_Plane, [""])
sketch8.MapMode = "FlatFace"
sketch8.AttachmentOffset = App.Placement(App.Vector(0, 0, 1.5), App.Rotation())
sketch8.addGeometry([
    Part.LineSegment(App.Vector(9.8, 6.99, 0), App.Vector(12.22, 6.99, 0)),  # 0
    Part.ArcOfCircle(Part.Circle(App.Vector(11.96, 7.29, 0), App.Vector(0, 0, 1), 0.4), math.radians(-49), math.radians(0)),  # 1
    Part.LineSegment(App.Vector(12.36, 7.29, 0), App.Vector(12.36, 6.99, 0)),  # 2
    Part.LineSegment(App.Vector(12.36, 6.99, 0), App.Vector(12.46, 6.99, 0)),  # 3
    Part.LineSegment(App.Vector(12.46, 6.99, 0), App.Vector(12.46, -20.5, 0)),  # 4
    Part.ArcOfCircle(Part.Circle(App.Vector(10.25, -20.5, 0), App.Vector(0, 0, 1), 2.21), math.radians(-90), math.radians(0)),  # 5
    Part.LineSegment(App.Vector(10.25, -22.71, 0), App.Vector(-10.25, -22.71, 0)),  # 6
    Part.ArcOfCircle(Part.Circle(App.Vector(-10.25, -20.5, 0), App.Vector(0, 0, 1), 2.21), math.radians(180), math.radians(270)),  # 7
    Part.LineSegment(App.Vector(-12.46, -20.5, 0), App.Vector(-12.46, 6.99, 0)),  # 8
    Part.LineSegment(App.Vector(-12.46, 6.99, 0), App.Vector(-12.36, 6.99, 0)),  # 9
    Part.LineSegment(App.Vector(-12.36, 6.99, 0), App.Vector(-12.36, 7.29, 0)),  # 10
    Part.ArcOfCircle(Part.Circle(App.Vector(-11.96, 7.29, 0), App.Vector(0, 0, 1), 0.4), math.radians(180), math.radians(229)),  # 11
    Part.LineSegment(App.Vector(-12.22, 6.99, 0), App.Vector(-9.8, 6.99, 0)),  # 12
    Part.ArcOfCircle(Part.Circle(App.Vector(0, 12.5, 0), App.Vector(0, 0, 1), 11.24), math.radians(-151), math.radians(-94)),  # 13
    Part.LineSegment(App.Vector(-0.88, 1.29, 0), App.Vector(0.88, 1.29, 0)),  # 14
    Part.ArcOfCircle(Part.Circle(App.Vector(0, 12.5, 0), App.Vector(0, 0, 1), 11.24), math.radians(-86), math.radians(-29)),  # 15
    Part.Circle(App.Vector(10.25, 4, 0), App.Vector(0, 0, 1), 1.2),  # 16
    Part.Circle(App.Vector(-10.25, 4, 0), App.Vector(0, 0, 1), 1.2),  # 17
    Part.Circle(App.Vector(10.25, -20.5, 0), App.Vector(0, 0, 1), 1.2),  # 18
    Part.Circle(App.Vector(-10.25, -20.5, 0), App.Vector(0, 0, 1), 1.2),  # 19
    Part.Circle(App.Vector(0, 12.5, 0), App.Vector(0, 0, 1), 1.65),  # 20
], False)
sketch8.addConstraint([
    Sketcher.Constraint("Coincident", 0, 2, 1, 1),
    Sketcher.Constraint("Tangent", 1, 2, 2, 1),
    Sketcher.Constraint("Coincident", 2, 2, 3, 1),
    Sketcher.Constraint("Coincident", 3, 2, 4, 1),
    Sketcher.Constraint("Tangent", 4, 2, 5, 2),
    Sketcher.Constraint("Tangent", 5, 1, 6, 1),
    Sketcher.Constraint("Tangent", 6, 2, 7, 2),
    Sketcher.Constraint("Tangent", 7, 1, 8, 1),
    Sketcher.Constraint("Coincident", 8, 2, 9, 1),
    Sketcher.Constraint("Coincident", 9, 2, 10, 1),
    Sketcher.Constraint("Tangent", 10, 2, 11, 1),
    Sketcher.Constraint("Coincident", 11, 2, 12, 1),
    Sketcher.Constraint("Coincident", 12, 2, 13, 1),
    Sketcher.Constraint("Coincident", 13, 2, 14, 1),
    Sketcher.Constraint("Coincident", 14, 2, 15, 1),
    Sketcher.Constraint("Coincident", 15, 2, 0, 1),
    Sketcher.Constraint("Horizontal", 0),
    Sketcher.Constraint("Vertical", 2),
    Sketcher.Constraint("Horizontal", 3),
    Sketcher.Constraint("Vertical", 4),
    Sketcher.Constraint("Horizontal", 6),
    Sketcher.Constraint("Vertical", 8),
    Sketcher.Constraint("Horizontal", 9),
    Sketcher.Constraint("Vertical", 10),
    Sketcher.Constraint("Horizontal", 12),
    Sketcher.Constraint("Horizontal", 14),
    Sketcher.Constraint("Coincident", 15, 3, 13, 3),
    Sketcher.Constraint("Coincident", 18, 3, 5, 3),
    Sketcher.Constraint("Coincident", 19, 3, 7, 3),
    Sketcher.Constraint("Coincident", 20, 3, 13, 3),
    Sketcher.Constraint("Equal", 5, 7),
    Sketcher.Constraint("Equal", 1, 11),
    Sketcher.Constraint("Equal", 13, 15),
    Sketcher.Constraint("Equal", 16, 17),
    Sketcher.Constraint("Equal", 17, 18),
    Sketcher.Constraint("Equal", 18, 19),
    Sketcher.Constraint("Symmetric", 1, 3, 11, 3, -2),
    Sketcher.Constraint("Symmetric", 16, 3, 17, 3, -2),
    Sketcher.Constraint("Symmetric", 3, 2, 8, 2, -2),
    Sketcher.Constraint("Symmetric", 12, 2, 15, 2, -2),
    Sketcher.Constraint("Horizontal", 0, 2, 2, 2),
    Sketcher.Constraint("Vertical", 5, 3, 16, 3),
    Sketcher.Constraint("DistanceX", 3, 1, 3, 2, Q("0.1 mm")),
    Sketcher.Constraint("Diameter", 16, Q("2.4 mm")),
    Sketcher.Constraint("Diameter", 20, Q("3.3 mm")),
    Sketcher.Constraint("Radius", 1, Q("0.4 mm")),
    Sketcher.Constraint("Radius", 5, Q("2.21 mm")),
    Sketcher.Constraint("DistanceX", 6, 2, 6, 1, Q("20.5 mm")),
    Sketcher.Constraint("DistanceY", 2, 2, 2, 1, Q("0.3 mm")),
    Sketcher.Constraint("DistanceY", -1, 1, 16, 3, Q("4 mm")),
    Sketcher.Constraint("DistanceY", 5, 3, 13, 3, Q("33 mm")),
    Sketcher.Constraint("DistanceY", 4, 2, 4, 1, Q("27.49 mm")),
    Sketcher.Constraint("DistanceY", 5, 3, -1, 1, Q("20.5 mm")),
    Sketcher.Constraint("Radius", 13, Q("11.2443 mm")),
    Sketcher.Constraint("DistanceY", 13, 2, 12, 2, Q("5.7 mm")),
])
sketch8.setExpression("Constraints[42]", "Params.sketch8_width")
sketch8.setExpression("Constraints[43]", "Params.sketch8_diameter")
sketch8.setExpression("Constraints[44]", "Params.sketch8_diameter2")
sketch8.setExpression("Constraints[45]", "Params.sketch8_radius")
sketch8.setExpression("Constraints[46]", "Params.sketch8_radius2")
pocket3 = doc.addObject("PartDesign::Pocket", "Pocket002")
body.addObject(pocket3)
pocket3.Profile = sketch8
pocket3.Type = "ThroughAll"

# Sketch on XY plane
sketch9 = doc.addObject("Sketcher::SketchObject", "Sketch008")
body.addObject(sketch9)
sketch9.AttachmentSupport = (doc.XY_Plane, [""])
sketch9.MapMode = "FlatFace"
sketch9.addGeometry([
    Part.LineSegment(App.Vector(-0.9, 1.3, 0), App.Vector(0.9, 1.3, 0)),
    Part.ArcOfCircle(Part.Circle(App.Vector(0, 12.5, 0), App.Vector(0, 0, 1), 11.2), math.radians(-94.47), math.radians(-85.53)),
], False)
sketch9.addConstraint([
    Sketcher.Constraint("Coincident", 0, 1, 1, 1),
    Sketcher.Constraint("Coincident", 1, 2, 0, 2),
    Sketcher.Constraint("Horizontal", 0),
    Sketcher.Constraint("PointOnObject", 1, 3, -2),
    Sketcher.Constraint("DistanceY", -1, 1, 1, 3, Q("12.5 mm")),
    Sketcher.Constraint("Radius", 1, Q("11.2442 mm")),
    Sketcher.Constraint("DistanceY", -1, 1, 0, 1, Q("1.29 mm")),
])
pad6 = doc.addObject("PartDesign::Pad", "Pad005")
body.addObject(pad6)
pad6.Profile = sketch9
pad6.setExpression("Length", "Params.pad6_length")

# Sketch on XY plane
sketch10 = doc.addObject("Sketcher::SketchObject", "Sketch009")
body.addObject(sketch10)
sketch10.AttachmentSupport = (doc.XY_Plane, [""])
sketch10.MapMode = "FlatFace"
sketch10.addGeometry([
    Part.LineSegment(App.Vector(9.34, 6.99, 0), App.Vector(9.8, 6.99, 0)),
    Part.ArcOfCircle(Part.Circle(App.Vector(0, 12.5, 0), App.Vector(0, 0, 1), 11.24), math.radians(-151), math.radians(-29)),
    Part.LineSegment(App.Vector(-9.8, 6.99, 0), App.Vector(-9.34, 6.99, 0)),
    Part.ArcOfCircle(Part.Circle(App.Vector(0, 12.5, 0), App.Vector(0, 0, 1), 10.84), math.radians(-149), math.radians(-31)),
], False)
sketch10.addConstraint([
    Sketcher.Constraint("Coincident", 0, 2, 1, 2),
    Sketcher.Constraint("Coincident", 1, 1, 2, 1),
    Sketcher.Constraint("Coincident", 2, 2, 3, 1),
    Sketcher.Constraint("Coincident", 3, 2, 0, 1),
    Sketcher.Constraint("Horizontal", 0),
    Sketcher.Constraint("Horizontal", 2),
    Sketcher.Constraint("Coincident", 3, 3, 1, 3),
    Sketcher.Constraint("Symmetric", 0, 2, 1, 1, -2),
    Sketcher.Constraint("DistanceY", -1, 1, 1, 3, Q("12.5 mm")),
    Sketcher.Constraint("Radius", 1, Q("11.2443 mm")),
    Sketcher.Constraint("Radius", 3, Q("10.8442 mm")),
    Sketcher.Constraint("DistanceY", -1, 1, 0, 2, Q("6.99 mm")),
])
pocket4 = doc.addObject("PartDesign::Pocket", "Pocket003")
body.addObject(pocket4)
pocket4.Profile = sketch10
pocket4.setExpression("Length", "Params.pocket4_length")
pocket4.Reversed = True
doc.recompute()

fillet2 = doc.addObject("PartDesign::Fillet", "Fillet001")
body.addObject(fillet2)
fillet2.Base = (pocket4, edges_at(pocket4, [(9.35, -3.805, 2.5), (-9.35, -3.805, 2.5)]))
fillet2.setExpression("Radius", "Params.fillet2_radius")

# Sketch on XY plane
sketch11 = doc.addObject("Sketcher::SketchObject", "Sketch010")
body.addObject(sketch11)
sketch11.AttachmentSupport = (doc.XY_Plane, [""])
sketch11.MapMode = "FlatFace"
sketch11.AttachmentOffset = App.Placement(App.Vector(0, 0, 4.5), App.Rotation())
sketch11.addGeometry(Part.Circle(App.Vector(0, 29.8, 0), App.Vector(0, 0, 1), 3), False)
sketch11.addConstraint([
    Sketcher.Constraint("PointOnObject", 0, 3, -2),
    Sketcher.Constraint("Diameter", 0, Q("6.1 mm")),
    Sketcher.Constraint("DistanceY", -1, 1, 0, 3, Q("29.8 mm")),
])
sketch11.setExpression("Constraints[1]", "Params.sketch11_diameter")
pocket5 = doc.addObject("PartDesign::Pocket", "Pocket004")
body.addObject(pocket5)
pocket5.Profile = sketch11
pocket5.Type = "ThroughAll"

doc.recompute()
